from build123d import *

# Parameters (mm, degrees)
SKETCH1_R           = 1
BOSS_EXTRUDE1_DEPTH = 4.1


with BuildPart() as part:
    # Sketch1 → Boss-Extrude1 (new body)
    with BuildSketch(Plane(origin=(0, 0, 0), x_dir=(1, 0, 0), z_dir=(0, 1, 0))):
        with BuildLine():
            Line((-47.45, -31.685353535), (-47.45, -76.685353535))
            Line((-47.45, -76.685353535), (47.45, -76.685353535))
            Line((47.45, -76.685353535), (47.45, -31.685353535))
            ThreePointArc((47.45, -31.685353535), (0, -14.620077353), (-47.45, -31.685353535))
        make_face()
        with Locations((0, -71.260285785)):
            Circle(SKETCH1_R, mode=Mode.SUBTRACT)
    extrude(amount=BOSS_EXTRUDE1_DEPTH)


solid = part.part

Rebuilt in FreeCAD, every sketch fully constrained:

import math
import FreeCAD as App
import Part
import Sketcher

V = App.Vector
Q = App.Units.Quantity

doc = App.newDocument("Part")
params = doc.addObject("Spreadsheet::Sheet", "Params")
for row, (alias, value) in enumerate([
    ("sketch1_diameter", "2 mm"),
    ("sketch1_radius", "74.5 mm"),
    ("sketch1_height", "45 mm"),
    ("sketch1_width", "94.9 mm"),
    ("pad1_length", "4.1 mm"),
], start=1):
    params.set(f"A{row}", alias)
    params.set(f"B{row}", "=" + value)
    params.setAlias(f"B{row}", alias)

body = doc.addObject("PartDesign::Body", "Body")

sketch1 = body.newObject("Sketcher::SketchObject", "Sketch")
sketch1.AttachmentSupport = (doc.getObject("XZ_Plane"), [""])
sketch1.MapMode = "FlatFace"
sketch1.addGeometry([
    Part.LineSegment(V(-47.5, 31.7, 0), V(-47.5, 76.7, 0)),
    Part.LineSegment(V(-47.5, 76.7, 0), V(47.5, 76.7, 0)),
    Part.LineSegment(V(47.5, 76.7, 0), V(47.5, 31.7, 0)),
    Part.ArcOfCircle(Part.Circle(V(0, 89.1, 0), V(0, 0, 1), 74.5), math.radians(-130), math.radians(-50)),
    Part.Circle(V(0, 71.3, 0), V(0, 0, 1), 1),
], False)
sketch1.addConstraint([
    Sketcher.Constraint("Coincident", 0, 2, 1, 1),
    Sketcher.Constraint("Coincident", 1, 2, 2, 1),
    Sketcher.Constraint("Coincident", 2, 2, 3, 2),
    Sketcher.Constraint("Coincident", 3, 1, 0, 1),
    Sketcher.Constraint("Vertical", 0),
    Sketcher.Constraint("Horizontal", 1),
    Sketcher.Constraint("Vertical", 2),
    Sketcher.Constraint("Symmetric", 2, 2, 3, 1, -2),
    Sketcher.Constraint("PointOnObject", 4, 3, -2),
    Sketcher.Constraint("Diameter", 4, Q("2 mm")),
    Sketcher.Constraint("Radius", 3, Q("74.5 mm")),
    Sketcher.Constraint("DistanceY", 0, 1, 0, 2, Q("45 mm")),
    Sketcher.Constraint("DistanceX", 1, 1, 1, 2, Q("94.9 mm")),
    Sketcher.Constraint("DistanceY", 4, 3, 3, 3, Q("17.859792 mm")),
    Sketcher.Constraint("DistanceY", -1, 1, 3, 3, Q("89.120077 mm")),
])
sketch1.setExpression("Constraints[9]", "Params.sketch1_diameter")
sketch1.setExpression("Constraints[10]", "Params.sketch1_radius")
sketch1.setExpression("Constraints[11]", "Params.sketch1_height")
sketch1.setExpression("Constraints[12]", "Params.sketch1_width")
pad1 = body.newObject("PartDesign::Pad", "Pad")
pad1.Profile = sketch1
pad1.setExpression("Length", "Params.pad1_length")
pad1.Reversed = True

doc.recompute()
